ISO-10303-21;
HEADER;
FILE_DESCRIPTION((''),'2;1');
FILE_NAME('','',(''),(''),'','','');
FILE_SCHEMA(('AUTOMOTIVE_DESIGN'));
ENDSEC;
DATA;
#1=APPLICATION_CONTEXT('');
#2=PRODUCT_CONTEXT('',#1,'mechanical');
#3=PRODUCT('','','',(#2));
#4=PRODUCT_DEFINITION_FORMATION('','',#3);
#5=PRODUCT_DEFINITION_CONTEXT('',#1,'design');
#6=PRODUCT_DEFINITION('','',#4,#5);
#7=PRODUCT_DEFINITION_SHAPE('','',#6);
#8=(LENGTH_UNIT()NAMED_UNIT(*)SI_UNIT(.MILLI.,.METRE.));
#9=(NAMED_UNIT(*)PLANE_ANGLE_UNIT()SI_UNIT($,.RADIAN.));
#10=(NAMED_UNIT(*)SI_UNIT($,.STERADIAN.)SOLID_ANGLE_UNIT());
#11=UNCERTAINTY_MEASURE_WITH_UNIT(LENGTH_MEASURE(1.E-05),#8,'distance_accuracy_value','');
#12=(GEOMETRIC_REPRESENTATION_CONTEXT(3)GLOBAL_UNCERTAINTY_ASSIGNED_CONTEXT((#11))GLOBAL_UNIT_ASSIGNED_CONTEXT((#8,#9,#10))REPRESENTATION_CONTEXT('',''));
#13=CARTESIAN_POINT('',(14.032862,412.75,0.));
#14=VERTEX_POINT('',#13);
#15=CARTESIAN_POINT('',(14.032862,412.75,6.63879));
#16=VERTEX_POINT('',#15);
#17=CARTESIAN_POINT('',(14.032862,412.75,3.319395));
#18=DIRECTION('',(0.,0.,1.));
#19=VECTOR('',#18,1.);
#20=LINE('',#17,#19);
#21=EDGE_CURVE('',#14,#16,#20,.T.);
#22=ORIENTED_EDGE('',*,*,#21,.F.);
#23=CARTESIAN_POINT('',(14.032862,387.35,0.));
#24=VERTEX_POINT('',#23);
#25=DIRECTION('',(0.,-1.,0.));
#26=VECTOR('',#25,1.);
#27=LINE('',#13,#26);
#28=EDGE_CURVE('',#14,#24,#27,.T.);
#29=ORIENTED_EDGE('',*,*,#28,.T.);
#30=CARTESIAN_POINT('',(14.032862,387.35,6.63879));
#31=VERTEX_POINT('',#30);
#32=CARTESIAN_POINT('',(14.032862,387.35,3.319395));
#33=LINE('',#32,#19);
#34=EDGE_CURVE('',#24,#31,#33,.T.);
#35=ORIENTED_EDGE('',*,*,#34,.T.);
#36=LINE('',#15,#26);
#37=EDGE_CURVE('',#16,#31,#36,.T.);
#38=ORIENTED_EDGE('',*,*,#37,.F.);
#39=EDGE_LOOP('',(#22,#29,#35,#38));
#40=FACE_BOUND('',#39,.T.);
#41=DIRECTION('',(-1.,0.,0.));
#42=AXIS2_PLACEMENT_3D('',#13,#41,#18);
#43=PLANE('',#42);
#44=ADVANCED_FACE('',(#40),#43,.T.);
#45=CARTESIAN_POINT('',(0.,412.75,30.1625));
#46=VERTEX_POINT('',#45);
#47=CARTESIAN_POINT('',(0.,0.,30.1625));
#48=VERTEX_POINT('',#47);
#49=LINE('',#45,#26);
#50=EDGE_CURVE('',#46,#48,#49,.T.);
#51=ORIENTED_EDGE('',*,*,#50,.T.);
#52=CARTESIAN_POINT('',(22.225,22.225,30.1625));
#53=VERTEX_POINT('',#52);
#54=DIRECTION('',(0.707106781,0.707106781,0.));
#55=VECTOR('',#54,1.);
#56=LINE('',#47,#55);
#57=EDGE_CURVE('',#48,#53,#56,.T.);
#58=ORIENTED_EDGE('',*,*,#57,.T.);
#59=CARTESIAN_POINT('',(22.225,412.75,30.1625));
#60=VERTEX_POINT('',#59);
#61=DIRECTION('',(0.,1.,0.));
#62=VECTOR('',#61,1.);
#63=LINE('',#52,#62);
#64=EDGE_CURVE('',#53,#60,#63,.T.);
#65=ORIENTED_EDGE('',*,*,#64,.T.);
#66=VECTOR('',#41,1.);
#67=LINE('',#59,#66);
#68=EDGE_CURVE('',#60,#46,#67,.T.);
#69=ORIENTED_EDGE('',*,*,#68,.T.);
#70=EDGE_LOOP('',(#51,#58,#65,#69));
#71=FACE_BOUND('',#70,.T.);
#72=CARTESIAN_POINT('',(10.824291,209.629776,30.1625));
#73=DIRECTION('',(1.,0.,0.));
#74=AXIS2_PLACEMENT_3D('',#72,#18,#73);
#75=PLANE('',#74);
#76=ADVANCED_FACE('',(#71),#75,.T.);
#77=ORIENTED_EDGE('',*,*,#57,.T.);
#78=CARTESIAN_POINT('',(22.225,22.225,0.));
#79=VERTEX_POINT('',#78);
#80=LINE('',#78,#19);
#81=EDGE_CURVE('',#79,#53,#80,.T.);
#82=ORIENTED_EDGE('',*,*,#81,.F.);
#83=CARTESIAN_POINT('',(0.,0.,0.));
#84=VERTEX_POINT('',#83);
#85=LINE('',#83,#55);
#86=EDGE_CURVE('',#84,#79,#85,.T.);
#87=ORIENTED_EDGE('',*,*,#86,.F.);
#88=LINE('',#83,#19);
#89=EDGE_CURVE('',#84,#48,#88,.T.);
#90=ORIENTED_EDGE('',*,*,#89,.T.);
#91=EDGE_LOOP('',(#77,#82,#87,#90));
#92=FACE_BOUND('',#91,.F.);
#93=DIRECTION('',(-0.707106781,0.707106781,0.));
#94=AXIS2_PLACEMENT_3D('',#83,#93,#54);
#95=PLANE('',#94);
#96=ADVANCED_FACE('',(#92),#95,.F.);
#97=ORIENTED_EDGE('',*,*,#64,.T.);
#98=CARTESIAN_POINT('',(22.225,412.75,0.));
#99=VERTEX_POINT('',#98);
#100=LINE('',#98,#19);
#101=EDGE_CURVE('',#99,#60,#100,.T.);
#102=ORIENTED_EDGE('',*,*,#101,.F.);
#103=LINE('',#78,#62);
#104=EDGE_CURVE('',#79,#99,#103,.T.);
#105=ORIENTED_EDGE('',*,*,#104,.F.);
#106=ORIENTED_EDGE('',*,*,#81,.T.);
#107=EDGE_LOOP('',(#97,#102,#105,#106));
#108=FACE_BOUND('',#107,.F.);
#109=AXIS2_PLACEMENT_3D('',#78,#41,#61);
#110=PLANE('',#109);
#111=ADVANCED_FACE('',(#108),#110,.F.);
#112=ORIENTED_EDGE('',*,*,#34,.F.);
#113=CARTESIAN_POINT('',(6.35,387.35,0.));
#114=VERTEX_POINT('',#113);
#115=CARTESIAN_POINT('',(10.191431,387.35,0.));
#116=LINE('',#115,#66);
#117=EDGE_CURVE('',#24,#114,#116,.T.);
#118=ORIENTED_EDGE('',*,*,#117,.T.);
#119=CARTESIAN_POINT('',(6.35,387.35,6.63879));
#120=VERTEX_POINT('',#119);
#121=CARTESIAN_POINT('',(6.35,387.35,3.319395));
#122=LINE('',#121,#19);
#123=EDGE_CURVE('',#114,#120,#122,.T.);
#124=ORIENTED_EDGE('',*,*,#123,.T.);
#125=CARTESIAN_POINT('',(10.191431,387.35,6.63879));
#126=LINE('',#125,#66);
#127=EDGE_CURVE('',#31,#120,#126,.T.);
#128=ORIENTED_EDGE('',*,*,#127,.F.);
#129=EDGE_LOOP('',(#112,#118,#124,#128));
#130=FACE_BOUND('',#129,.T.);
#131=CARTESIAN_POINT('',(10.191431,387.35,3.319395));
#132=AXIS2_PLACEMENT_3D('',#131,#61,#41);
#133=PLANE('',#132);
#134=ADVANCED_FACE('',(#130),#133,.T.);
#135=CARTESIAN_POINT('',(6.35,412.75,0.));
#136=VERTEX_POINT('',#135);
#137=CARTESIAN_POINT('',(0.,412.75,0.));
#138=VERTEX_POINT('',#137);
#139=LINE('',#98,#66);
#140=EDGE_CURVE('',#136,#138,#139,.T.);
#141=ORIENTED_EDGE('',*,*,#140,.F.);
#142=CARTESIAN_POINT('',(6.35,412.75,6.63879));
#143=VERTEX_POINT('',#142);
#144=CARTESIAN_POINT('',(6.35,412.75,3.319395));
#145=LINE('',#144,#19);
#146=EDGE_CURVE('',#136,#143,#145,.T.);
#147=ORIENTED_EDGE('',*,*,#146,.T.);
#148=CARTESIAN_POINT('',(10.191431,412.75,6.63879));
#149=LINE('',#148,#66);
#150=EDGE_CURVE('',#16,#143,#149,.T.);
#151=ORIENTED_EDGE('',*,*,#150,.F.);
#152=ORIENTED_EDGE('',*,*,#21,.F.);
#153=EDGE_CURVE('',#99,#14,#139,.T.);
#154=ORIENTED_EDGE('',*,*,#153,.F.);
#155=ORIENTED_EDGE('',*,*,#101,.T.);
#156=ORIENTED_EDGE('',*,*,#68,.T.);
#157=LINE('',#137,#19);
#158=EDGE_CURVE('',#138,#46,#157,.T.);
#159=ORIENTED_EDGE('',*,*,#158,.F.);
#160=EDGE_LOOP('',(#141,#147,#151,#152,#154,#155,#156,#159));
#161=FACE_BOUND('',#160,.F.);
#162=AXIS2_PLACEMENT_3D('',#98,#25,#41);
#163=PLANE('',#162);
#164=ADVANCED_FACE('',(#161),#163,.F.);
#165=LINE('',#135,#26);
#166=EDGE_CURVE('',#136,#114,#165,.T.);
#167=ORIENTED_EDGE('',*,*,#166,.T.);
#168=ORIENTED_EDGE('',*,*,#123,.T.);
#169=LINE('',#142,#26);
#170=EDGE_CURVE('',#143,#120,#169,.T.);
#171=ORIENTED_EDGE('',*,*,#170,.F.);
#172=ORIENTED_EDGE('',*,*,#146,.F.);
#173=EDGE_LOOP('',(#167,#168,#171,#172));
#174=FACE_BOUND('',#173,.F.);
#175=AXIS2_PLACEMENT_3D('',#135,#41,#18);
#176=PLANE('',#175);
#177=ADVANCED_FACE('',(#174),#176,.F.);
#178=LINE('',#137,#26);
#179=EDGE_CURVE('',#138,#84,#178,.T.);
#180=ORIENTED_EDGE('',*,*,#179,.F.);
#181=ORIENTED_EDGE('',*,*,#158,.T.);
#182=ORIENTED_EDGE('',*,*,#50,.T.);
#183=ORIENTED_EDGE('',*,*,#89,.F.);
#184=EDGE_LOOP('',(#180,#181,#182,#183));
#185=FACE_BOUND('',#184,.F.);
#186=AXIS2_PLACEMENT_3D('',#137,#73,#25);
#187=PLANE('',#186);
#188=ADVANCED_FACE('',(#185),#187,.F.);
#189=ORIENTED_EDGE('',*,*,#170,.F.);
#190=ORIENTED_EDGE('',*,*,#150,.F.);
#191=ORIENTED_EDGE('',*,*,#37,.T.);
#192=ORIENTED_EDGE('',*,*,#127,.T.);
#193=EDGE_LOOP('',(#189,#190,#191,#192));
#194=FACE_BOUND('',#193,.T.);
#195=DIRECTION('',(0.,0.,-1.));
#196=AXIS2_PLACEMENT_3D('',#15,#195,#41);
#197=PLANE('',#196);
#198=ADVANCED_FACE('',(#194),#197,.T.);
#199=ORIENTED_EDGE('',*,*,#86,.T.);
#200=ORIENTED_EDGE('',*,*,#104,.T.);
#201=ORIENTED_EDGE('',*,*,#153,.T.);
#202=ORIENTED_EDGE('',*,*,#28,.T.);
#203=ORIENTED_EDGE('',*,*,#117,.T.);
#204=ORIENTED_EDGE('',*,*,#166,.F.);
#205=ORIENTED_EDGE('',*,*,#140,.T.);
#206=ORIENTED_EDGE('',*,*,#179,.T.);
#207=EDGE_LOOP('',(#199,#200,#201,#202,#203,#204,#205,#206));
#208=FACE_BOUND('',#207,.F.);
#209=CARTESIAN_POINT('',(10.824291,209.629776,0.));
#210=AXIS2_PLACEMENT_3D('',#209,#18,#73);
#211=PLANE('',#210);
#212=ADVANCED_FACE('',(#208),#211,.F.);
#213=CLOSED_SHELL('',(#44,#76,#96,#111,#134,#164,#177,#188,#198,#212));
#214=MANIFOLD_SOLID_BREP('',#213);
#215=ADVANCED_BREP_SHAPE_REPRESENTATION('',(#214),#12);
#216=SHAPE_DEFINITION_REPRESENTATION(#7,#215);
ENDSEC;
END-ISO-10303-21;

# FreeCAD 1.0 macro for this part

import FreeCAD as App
import Part
import Sketcher
from FreeCAD import Vector
Q = App.Units.Quantity

doc = App.newDocument("Part")
body = doc.addObject("PartDesign::Body", "Body")

# Sketch on XY plane
sketch1 = body.newObject("Sketcher::SketchObject", "Sketch")
sketch1.AttachmentSupport = (doc.getObject("XY_Plane"), [""])
sketch1.MapMode = "FlatFace"
sketch1.addGeometry([
    Part.LineSegment(Vector(22.225, 412.75, 0), Vector(0, 412.75, 0)),
    Part.LineSegment(Vector(0, 412.75, 0), Vector(0, 0, 0)),
    Part.LineSegment(Vector(0, 0, 0), Vector(22.225, 22.225, 0)),
    Part.LineSegment(Vector(22.225, 22.225, 0), Vector(22.225, 412.75, 0)),
], False)
sketch1.addConstraint([
    Sketcher.Constraint("Coincident", 0, 2, 1, 1),
    Sketcher.Constraint("Coincident", 1, 2, 2, 1),
    Sketcher.Constraint("Coincident", 2, 2, 3, 1),
    Sketcher.Constraint("Coincident", 3, 2, 0, 1),
    Sketcher.Constraint("Horizontal", 0),
    Sketcher.Constraint("Vertical", 1),
    Sketcher.Constraint("Vertical", 3),
    Sketcher.Constraint("Coincident", 1, 2, -1, 1),
    Sketcher.Constraint("Angle", 2, Q("45 deg")),
    Sketcher.Constraint("DistanceY", 1, 2, 1, 1, Q("16.25 in")),
    Sketcher.Constraint("DistanceX", 0, 2, 0, 1, Q("0.875 in")),
])
pad1 = body.newObject("PartDesign::Pad", "Pad")
pad1.Profile = sketch1
pad1.Length = Q("1.1875 in")

# Sketch on XZ plane
sketch2 = body.newObject("Sketcher::SketchObject", "Sketch001")
sketch2.AttachmentSupport = (doc.getObject("XZ_Plane"), [""])
sketch2.MapMode = "FlatFace"
sketch2.AttachmentOffset = App.Placement(Vector(0, 0, -16.25 * 25.4), App.Rotation())
sketch2.addGeometry([
    Part.LineSegment(Vector(14.032862, 6.63879, 0), Vector(14.032862, 0, 0)),
    Part.LineSegment(Vector(14.032862, 0, 0), Vector(6.35, 0, 0)),
    Part.LineSegment(Vector(6.35, 0, 0), Vector(6.35, 6.63879, 0)),
    Part.LineSegment(Vector(6.35, 6.63879, 0), Vector(14.032862, 6.63879, 0)),
], False)
sketch2.addConstraint([
    Sketcher.Constraint("Coincident", 0, 2, 1, 1),
    Sketcher.Constraint("Coincident", 1, 2, 2, 1),
    Sketcher.Constraint("Coincident", 2, 2, 3, 1),
    Sketcher.Constraint("Coincident", 3, 2, 0, 1),
    Sketcher.Constraint("Vertical", 0),
    Sketcher.Constraint("Horizontal", 1),
    Sketcher.Constraint("Vertical", 2),
    Sketcher.Constraint("Horizontal", 3),
    Sketcher.Constraint("PointOnObject", 0, 2, -1),
    Sketcher.Constraint("DistanceX", -1, 1, 1, 2, Q("0.25 in")),
    Sketcher.Constraint("DistanceY", 0, 2, 0, 1, 6.63879),
    Sketcher.Constraint("DistanceX", 1, 2, 1, 1, 7.682862),
])
pocket1 = body.newObject("PartDesign::Pocket", "Pocket")
pocket1.Profile = sketch2
pocket1.Length = Q("1 in")
pocket1.Reversed = True

doc.recompute()
